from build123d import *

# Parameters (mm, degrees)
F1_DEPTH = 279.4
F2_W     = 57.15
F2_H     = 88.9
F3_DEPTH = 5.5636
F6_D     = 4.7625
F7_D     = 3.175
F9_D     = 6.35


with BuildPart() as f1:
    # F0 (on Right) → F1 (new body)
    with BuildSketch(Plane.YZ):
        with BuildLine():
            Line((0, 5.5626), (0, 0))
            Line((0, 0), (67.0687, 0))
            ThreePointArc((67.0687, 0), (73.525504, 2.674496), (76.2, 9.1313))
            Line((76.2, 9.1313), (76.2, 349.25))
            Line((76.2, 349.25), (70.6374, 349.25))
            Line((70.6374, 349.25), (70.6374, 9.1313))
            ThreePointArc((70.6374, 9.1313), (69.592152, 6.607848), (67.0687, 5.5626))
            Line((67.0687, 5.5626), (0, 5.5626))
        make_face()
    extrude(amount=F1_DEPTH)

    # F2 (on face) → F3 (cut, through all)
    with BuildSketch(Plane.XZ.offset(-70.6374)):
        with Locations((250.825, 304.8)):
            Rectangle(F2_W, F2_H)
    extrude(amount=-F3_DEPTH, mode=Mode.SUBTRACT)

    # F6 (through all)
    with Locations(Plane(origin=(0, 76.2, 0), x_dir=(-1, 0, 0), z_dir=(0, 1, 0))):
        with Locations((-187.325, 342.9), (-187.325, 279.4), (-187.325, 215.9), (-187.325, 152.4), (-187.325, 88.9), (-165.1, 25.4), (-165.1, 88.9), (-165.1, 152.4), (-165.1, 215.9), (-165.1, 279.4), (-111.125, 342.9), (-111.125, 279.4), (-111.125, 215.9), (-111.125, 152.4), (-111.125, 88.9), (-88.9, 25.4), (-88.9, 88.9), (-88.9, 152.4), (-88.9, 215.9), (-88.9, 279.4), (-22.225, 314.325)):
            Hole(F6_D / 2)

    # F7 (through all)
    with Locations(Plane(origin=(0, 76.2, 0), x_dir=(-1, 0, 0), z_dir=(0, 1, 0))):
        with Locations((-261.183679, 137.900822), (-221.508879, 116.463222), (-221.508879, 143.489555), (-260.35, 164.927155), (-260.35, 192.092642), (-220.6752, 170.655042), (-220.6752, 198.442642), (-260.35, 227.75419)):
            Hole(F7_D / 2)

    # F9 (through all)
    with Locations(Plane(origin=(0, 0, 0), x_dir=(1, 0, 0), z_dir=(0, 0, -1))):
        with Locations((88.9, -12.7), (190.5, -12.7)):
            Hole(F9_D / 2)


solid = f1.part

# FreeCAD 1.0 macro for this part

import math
import FreeCAD as App
import Part
import Sketcher
from FreeCAD import Vector
Q = App.Units.Quantity


def add_polygon(sketch, points):
    """Adds a closed chain of lines whose ends are joined by coincident constraints."""
    first, n = sketch.GeometryCount, len(points)
    for a, b in zip(points, points[1:] + points[:1]):
        sketch.addGeometry(Part.LineSegment(App.Vector(*a, 0), App.Vector(*b, 0)), False)
    for i in range(n):
        sketch.addConstraint(Sketcher.Constraint("Coincident", first + i, 2, first + (i + 1) % n, 1))

doc = App.newDocument("Part")
params = doc.addObject("Spreadsheet::Sheet", "Params")
for row, (alias, value) in enumerate([
    ("pad1_length", "11 in"),
    ("sketch2_height", "3.5 in"),
    ("sketch2_width", "2.25 in"),
    ("sketch3_diameter", "0.1875 in"),
    ("hole_diameter", "0.1875 in"),
    ("sketch4_diameter", "0.125 in"),
    ("hole2_diameter", "0.125 in"),
    ("sketch5_diameter", "0.25 in"),
    ("hole3_diameter", "0.25 in"),
], start=1):
    params.set(f"A{row}", alias)
    params.set(f"B{row}", "=" + value)
    params.setAlias(f"B{row}", alias)

body = doc.addObject("PartDesign::Body", "Body")

# Sketch on YZ plane
sketch1 = body.newObject("Sketcher::SketchObject", "Sketch")
sketch1.AttachmentSupport = (doc.getObject("YZ_Plane"), [""])
sketch1.MapMode = "FlatFace"
sketch1.addGeometry([
    Part.LineSegment(Vector(0, 5.5626, 0), Vector(0, 0, 0)),  # 0
    Part.LineSegment(Vector(0, 0, 0), Vector(67.0687, 0, 0)),  # 1
    Part.ArcOfCircle(Part.Circle(Vector(67.068699, 9.131301, 0), Vector(0, 0, 1), 9.131301), math.radians(-89.999997), math.radians(-0.000003)),  # 2
    Part.LineSegment(Vector(76.2, 9.1313, 0), Vector(76.2, 349.25, 0)),  # 3
    Part.LineSegment(Vector(76.2, 349.25, 0), Vector(70.6374, 349.25, 0)),  # 4
    Part.LineSegment(Vector(70.6374, 349.25, 0), Vector(70.6374, 9.1313, 0)),  # 5
    Part.ArcOfCircle(Part.Circle(Vector(67.0687, 9.1313, 0), Vector(0, 0, 1), 3.5687), math.radians(-90.000002), math.radians(0.000002)),  # 6
    Part.LineSegment(Vector(67.0687, 5.5626, 0), Vector(0, 5.5626, 0)),  # 7
], False)
sketch1.addConstraint([
    Sketcher.Constraint("Coincident", 0, 2, 1, 1),
    Sketcher.Constraint("Tangent", 1, 2, 2, 1),
    Sketcher.Constraint("Tangent", 2, 2, 3, 1),
    Sketcher.Constraint("Coincident", 3, 2, 4, 1),
    Sketcher.Constraint("Coincident", 4, 2, 5, 1),
    Sketcher.Constraint("Tangent", 5, 2, 6, 2),
    Sketcher.Constraint("Tangent", 6, 1, 7, 1),
    Sketcher.Constraint("Coincident", 7, 2, 0, 1),
    Sketcher.Constraint("Vertical", 0),
    Sketcher.Constraint("Horizontal", 1),
    Sketcher.Constraint("Vertical", 3),
    Sketcher.Constraint("Horizontal", 4),
    Sketcher.Constraint("Vertical", 5),
    Sketcher.Constraint("Horizontal", 7),
    Sketcher.Constraint("Coincident", 0, 2, -1, 1),
    Sketcher.Constraint("Coincident", 6, 3, 2, 3),
    Sketcher.Constraint("DistanceX", -1, 1, 2, 2, Q("3 in")),
    Sketcher.Constraint("Radius", 2, Q("0.3595 in")),
    Sketcher.Constraint("Radius", 6, Q("0.1405 in")),
    Sketcher.Constraint("DistanceY", -1, 1, 3, 2, Q("13.75 in")),
])
pad1 = body.newObject("PartDesign::Pad", "Pad")
pad1.Profile = sketch1
pad1.setExpression("Length", "Params.pad1_length")

# Sketch on XZ plane
sketch2 = body.newObject("Sketcher::SketchObject", "Sketch001")
sketch2.AttachmentSupport = (doc.getObject("XZ_Plane"), [""])
sketch2.MapMode = "FlatFace"
sketch2.AttachmentOffset = App.Placement(Vector(0, 0, -2.781 * 25.4), App.Rotation())
add_polygon(sketch2, [(222.25, 349.25), (222.25, 260.35), (279.4, 260.35), (279.4, 349.25)])  # lines 0-3
sketch2.addConstraint([
    Sketcher.Constraint("Vertical", 0),
    Sketcher.Constraint("Horizontal", 1),
    Sketcher.Constraint("Vertical", 2),
    Sketcher.Constraint("Horizontal", 3),
    Sketcher.Constraint("DistanceY", 0, 2, 0, 1, Q("3.5 in")),
    Sketcher.Constraint("DistanceX", -1, 1, 1, 2, Q("11 in")),
    Sketcher.Constraint("DistanceX", 1, 1, 1, 2, Q("2.25 in")),
    Sketcher.Constraint("DistanceY", -1, 1, 0, 2, Q("10.25 in")),
])
sketch2.setExpression("Constraints[8]", "Params.sketch2_height")
sketch2.setExpression("Constraints[10]", "Params.sketch2_width")
pocket1 = body.newObject("PartDesign::Pocket", "Pocket")
pocket1.Profile = sketch2
pocket1.Type = "ThroughAll"

# Sketch on XZ plane
sketch3 = body.newObject("Sketcher::SketchObject", "Sketch002")
sketch3.AttachmentSupport = (doc.getObject("XZ_Plane"), [""])
sketch3.MapMode = "FlatFace"
sketch3.AttachmentOffset = App.Placement(Vector(0, 0, -3 * 25.4), App.Rotation())
sketch3.addGeometry([
    Part.Circle(Vector(187.325, 342.9, 0), Vector(0, 0, 1), 2.38125),  # 0
    Part.Circle(Vector(187.325, 279.4, 0), Vector(0, 0, 1), 2.38125),  # 1
    Part.Circle(Vector(187.325, 215.9, 0), Vector(0, 0, 1), 2.38125),  # 2
    Part.Circle(Vector(187.325, 152.4, 0), Vector(0, 0, 1), 2.38125),  # 3
    Part.Circle(Vector(187.325, 88.9, 0), Vector(0, 0, 1), 2.38125),  # 4
    Part.Circle(Vector(165.1, 25.4, 0), Vector(0, 0, 1), 2.38125),  # 5
    Part.Circle(Vector(165.1, 88.9, 0), Vector(0, 0, 1), 2.38125),  # 6
    Part.Circle(Vector(165.1, 152.4, 0), Vector(0, 0, 1), 2.38125),  # 7
    Part.Circle(Vector(165.1, 215.9, 0), Vector(0, 0, 1), 2.38125),  # 8
    Part.Circle(Vector(165.1, 279.4, 0), Vector(0, 0, 1), 2.38125),  # 9
    Part.Circle(Vector(111.125, 342.9, 0), Vector(0, 0, 1), 2.38125),  # 10
    Part.Circle(Vector(111.125, 279.4, 0), Vector(0, 0, 1), 2.38125),  # 11
    Part.Circle(Vector(111.125, 215.9, 0), Vector(0, 0, 1), 2.38125),  # 12
    Part.Circle(Vector(111.125, 152.4, 0), Vector(0, 0, 1), 2.38125),  # 13
    Part.Circle(Vector(111.125, 88.9, 0), Vector(0, 0, 1), 2.38125),  # 14
    Part.Circle(Vector(88.9, 25.4, 0), Vector(0, 0, 1), 2.38125),  # 15
    Part.Circle(Vector(88.9, 88.9, 0), Vector(0, 0, 1), 2.38125),  # 16
    Part.Circle(Vector(88.9, 152.4, 0), Vector(0, 0, 1), 2.38125),  # 17
    Part.Circle(Vector(88.9, 215.9, 0), Vector(0, 0, 1), 2.38125),  # 18
    Part.Circle(Vector(88.9, 279.4, 0), Vector(0, 0, 1), 2.38125),  # 19
    Part.Circle(Vector(22.225, 314.325, 0), Vector(0, 0, 1), 2.38125),  # 20
], False)
sketch3.addConstraint([
    Sketcher.Constraint("Equal", 0, 1),
    Sketcher.Constraint("Equal", 1, 2),
    Sketcher.Constraint("Equal", 2, 3),
    Sketcher.Constraint("Equal", 3, 4),
    Sketcher.Constraint("Equal", 4, 5),
    Sketcher.Constraint("Equal", 5, 6),
    Sketcher.Constraint("Equal", 6, 7),
    Sketcher.Constraint("Equal", 7, 8),
    Sketcher.Constraint("Equal", 8, 9),
    Sketcher.Constraint("Equal", 9, 10),
    Sketcher.Constraint("Equal", 10, 11),
    Sketcher.Constraint("Equal", 11, 12),
    Sketcher.Constraint("Equal", 12, 13),
    Sketcher.Constraint("Equal", 13, 14),
    Sketcher.Constraint("Equal", 14, 15),
    Sketcher.Constraint("Equal", 15, 16),
    Sketcher.Constraint("Equal", 16, 17),
    Sketcher.Constraint("Equal", 17, 18),
    Sketcher.Constraint("Equal", 18, 19),
    Sketcher.Constraint("Equal", 19, 20),
    Sketcher.Constraint("Horizontal", 4, 3, 6, 3),
    Sketcher.Constraint("Horizontal", 3, 3, 7, 3),
    Sketcher.Constraint("Horizontal", 2, 3, 8, 3),
    Sketcher.Constraint("Horizontal", 1, 3, 9, 3),
    Sketcher.Constraint("Horizontal", 0, 3, 10, 3),
    Sketcher.Constraint("Horizontal", 9, 3, 11, 3),
    Sketcher.Constraint("Horizontal", 8, 3, 12, 3),
    Sketcher.Constraint("Horizontal", 7, 3, 13, 3),
    Sketcher.Constraint("Horizontal", 6, 3, 14, 3),
    Sketcher.Constraint("Horizontal", 5, 3, 15, 3),
    Sketcher.Constraint("Horizontal", 14, 3, 16, 3),
    Sketcher.Constraint("Horizontal", 13, 3, 17, 3),
    Sketcher.Constraint("Horizontal", 12, 3, 18, 3),
    Sketcher.Constraint("Horizontal", 11, 3, 19, 3),
    Sketcher.Constraint("Vertical", 0, 3, 1, 3),
    Sketcher.Constraint("Vertical", 1, 3, 2, 3),
    Sketcher.Constraint("Vertical", 2, 3, 3, 3),
    Sketcher.Constraint("Vertical", 3, 3, 4, 3),
    Sketcher.Constraint("Vertical", 5, 3, 6, 3),
    Sketcher.Constraint("Vertical", 6, 3, 7, 3),
    Sketcher.Constraint("Vertical", 7, 3, 8, 3),
    Sketcher.Constraint("Vertical", 8, 3, 9, 3),
    Sketcher.Constraint("Vertical", 10, 3, 11, 3),
    Sketcher.Constraint("Vertical", 11, 3, 12, 3),
    Sketcher.Constraint("Vertical", 12, 3, 13, 3),
    Sketcher.Constraint("Vertical", 13, 3, 14, 3),
    Sketcher.Constraint("Vertical", 15, 3, 16, 3),
    Sketcher.Constraint("Vertical", 16, 3, 17, 3),
    Sketcher.Constraint("Vertical", 17, 3, 18, 3),
    Sketcher.Constraint("Vertical", 18, 3, 19, 3),
    Sketcher.Constraint("Diameter", 0, Q("0.1875 in")),
    Sketcher.Constraint("DistanceY", -1, 1, 1, 3, Q("11 in")),
    Sketcher.Constraint("DistanceY", -1, 1, 3, 3, Q("6 in")),
    Sketcher.Constraint("DistanceY", -1, 1, 5, 3, Q("1 in")),
    Sketcher.Constraint("DistanceY", 2, 3, 0, 3, Q("5 in")),
    Sketcher.Constraint("DistanceY", 4, 3, 2, 3, Q("5 in")),
    Sketcher.Constraint("DistanceX", 10, 3, 0, 3, Q("3 in")),
    Sketcher.Constraint("DistanceX", 15, 3, 5, 3, Q("3 in")),
    Sketcher.Constraint("DistanceY", -1, 1, 0, 3, Q("13.5 in")),
    Sketcher.Constraint("DistanceX", -1, 1, 5, 3, Q("6.5 in")),
    Sketcher.Constraint("DistanceX", 20, 3, 10, 3, Q("3.5 in")),
    Sketcher.Constraint("DistanceX", -1, 1, 0, 3, Q("7.375 in")),
    Sketcher.Constraint("DistanceY", -1, 1, 20, 3, Q("12.375 in")),
])
sketch3.setExpression("Constraints[50]", "Params.sketch3_diameter")
doc.recompute()
hole = body.newObject("PartDesign::Hole", "Hole")
hole.Profile = sketch3
hole.ThreadType = "None"
hole.setExpression("Diameter", "Params.hole_diameter")
hole.DepthType = "ThroughAll"
hole.Reversed = True

# Sketch on XZ plane
sketch4 = body.newObject("Sketcher::SketchObject", "Sketch003")
sketch4.AttachmentSupport = (doc.getObject("XZ_Plane"), [""])
sketch4.MapMode = "FlatFace"
sketch4.AttachmentOffset = App.Placement(Vector(0, 0, -3 * 25.4), App.Rotation())
sketch4.addGeometry([
    Part.Circle(Vector(261.183679, 137.900822, 0), Vector(0, 0, 1), 1.5875),  # 0
    Part.Circle(Vector(221.508879, 116.463222, 0), Vector(0, 0, 1), 1.5875),  # 1
    Part.Circle(Vector(221.508879, 143.489555, 0), Vector(0, 0, 1), 1.5875),  # 2
    Part.Circle(Vector(260.35, 164.927155, 0), Vector(0, 0, 1), 1.5875),  # 3
    Part.Circle(Vector(260.35, 192.092642, 0), Vector(0, 0, 1), 1.5875),  # 4
    Part.Circle(Vector(220.6752, 170.655042, 0), Vector(0, 0, 1), 1.5875),  # 5
    Part.Circle(Vector(220.6752, 198.442642, 0), Vector(0, 0, 1), 1.5875),  # 6
    Part.Circle(Vector(260.35, 227.75419, 0), Vector(0, 0, 1), 1.5875),  # 7
], False)
sketch4.addConstraint([
    Sketcher.Constraint("Equal", 0, 1),
    Sketcher.Constraint("Equal", 1, 2),
    Sketcher.Constraint("Equal", 2, 3),
    Sketcher.Constraint("Equal", 3, 4),
    Sketcher.Constraint("Equal", 4, 5),
    Sketcher.Constraint("Equal", 5, 6),
    Sketcher.Constraint("Equal", 6, 7),
    Sketcher.Constraint("Vertical", 1, 3, 2, 3),
    Sketcher.Constraint("Vertical", 3, 3, 4, 3),
    Sketcher.Constraint("Vertical", 5, 3, 6, 3),
    Sketcher.Constraint("Vertical", 4, 3, 7, 3),
    Sketcher.Constraint("Diameter", 0, Q("0.125 in")),
    Sketcher.Constraint("DistanceX", -1, 1, 3, 3, Q("10.25 in")),
    Sketcher.Constraint("DistanceY", 4, 3, 6, 3, Q("0.25 in")),
    Sketcher.Constraint("DistanceX", -1, 1, 5, 3, Q("8.688 in")),
    Sketcher.Constraint("DistanceX", 1, 3, 0, 3, Q("1.562 in")),
    Sketcher.Constraint("DistanceY", 1, 3, 0, 3, Q("0.844 in")),
    Sketcher.Constraint("DistanceY", 2, 3, 3, 3, Q("0.844 in")),
    Sketcher.Constraint("DistanceY", 5, 3, 4, 3, Q("0.844 in")),
    Sketcher.Constraint("DistanceX", -1, 1, 0, 3, 261.183679),
    Sketcher.Constraint("DistanceY", -1, 1, 0, 3, 137.900822),
    Sketcher.Constraint("DistanceY", -1, 1, 5, 3, 170.655042),
    Sketcher.Constraint("DistanceY", -1, 1, 7, 3, 227.75419),
    Sketcher.Constraint("DistanceY", -1, 1, 2, 3, 143.489555),
])
sketch4.setExpression("Constraints[11]", "Params.sketch4_diameter")
doc.recompute()
hole2 = body.newObject("PartDesign::Hole", "Hole001")
hole2.Profile = sketch4
hole2.ThreadType = "None"
hole2.setExpression("Diameter", "Params.hole2_diameter")
hole2.DepthType = "ThroughAll"
hole2.Reversed = True

# Sketch on XY plane
sketch5 = body.newObject("Sketcher::SketchObject", "Sketch004")
sketch5.AttachmentSupport = (doc.getObject("XY_Plane"), [""])
sketch5.MapMode = "FlatFace"
sketch5.addGeometry([
    Part.Circle(Vector(88.9, 12.7, 0), Vector(0, 0, 1), 3.175),
    Part.Circle(Vector(190.5, 12.7, 0), Vector(0, 0, 1), 3.175),
], False)
sketch5.addConstraint([
    Sketcher.Constraint("Equal", 0, 1),
    Sketcher.Constraint("Horizontal", 0, 3, 1, 3),
    Sketcher.Constraint("Diameter", 0, Q("0.25 in")),
    Sketcher.Constraint("DistanceX", 0, 3, 1, 3, Q("4 in")),
    Sketcher.Constraint("DistanceX", -1, 1, 0, 3, Q("3.5 in")),
    Sketcher.Constraint("DistanceY", -1, 1, 0, 3, Q("0.5 in")),
])
sketch5.setExpression("Constraints[2]", "Params.sketch5_diameter")
doc.recompute()
hole3 = body.newObject("PartDesign::Hole", "Hole002")
hole3.Profile = sketch5
hole3.ThreadType = "None"
hole3.setExpression("Diameter", "Params.hole3_diameter")
hole3.DepthType = "ThroughAll"
hole3.Reversed = True

doc.recompute()
